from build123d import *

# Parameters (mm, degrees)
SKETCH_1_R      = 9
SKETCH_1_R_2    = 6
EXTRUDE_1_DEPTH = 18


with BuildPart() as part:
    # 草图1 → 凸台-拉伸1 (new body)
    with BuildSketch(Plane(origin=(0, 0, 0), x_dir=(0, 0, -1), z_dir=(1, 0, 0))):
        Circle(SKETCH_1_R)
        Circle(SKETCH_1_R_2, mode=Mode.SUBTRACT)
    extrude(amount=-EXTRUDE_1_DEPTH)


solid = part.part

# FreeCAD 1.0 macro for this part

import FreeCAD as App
import Part
import Sketcher
from FreeCAD import Vector
Q = App.Units.Quantity

doc = App.newDocument("Part")
body = doc.addObject("PartDesign::Body", "Body")

sketch1 = body.newObject("Sketcher::SketchObject", "Sketch")
sketch1.AttachmentSupport = (doc.getObject("YZ_Plane"), [""])
sketch1.MapMode = "FlatFace"
sketch1.addGeometry(Part.Circle(Vector(0, 0, 0), Vector(0, 0, 1), 9), False)
sketch1.addGeometry(Part.Circle(Vector(0, 0, 0), Vector(0, 0, 1), 6), False)
sketch1.addConstraint(Sketcher.Constraint("Coincident", 0, 3, -1, 1))
sketch1.addConstraint(Sketcher.Constraint("Coincident", 1, 3, -1, 1))
sketch1.addConstraint(Sketcher.Constraint("Diameter", 0, Q("18 mm")))
sketch1.addConstraint(Sketcher.Constraint("Diameter", 1, Q("12 mm")))
pad1 = body.newObject("PartDesign::Pad", "Pad")
pad1.Profile = sketch1
pad1.Length = 18
pad1.Reversed = True

doc.recompute()
